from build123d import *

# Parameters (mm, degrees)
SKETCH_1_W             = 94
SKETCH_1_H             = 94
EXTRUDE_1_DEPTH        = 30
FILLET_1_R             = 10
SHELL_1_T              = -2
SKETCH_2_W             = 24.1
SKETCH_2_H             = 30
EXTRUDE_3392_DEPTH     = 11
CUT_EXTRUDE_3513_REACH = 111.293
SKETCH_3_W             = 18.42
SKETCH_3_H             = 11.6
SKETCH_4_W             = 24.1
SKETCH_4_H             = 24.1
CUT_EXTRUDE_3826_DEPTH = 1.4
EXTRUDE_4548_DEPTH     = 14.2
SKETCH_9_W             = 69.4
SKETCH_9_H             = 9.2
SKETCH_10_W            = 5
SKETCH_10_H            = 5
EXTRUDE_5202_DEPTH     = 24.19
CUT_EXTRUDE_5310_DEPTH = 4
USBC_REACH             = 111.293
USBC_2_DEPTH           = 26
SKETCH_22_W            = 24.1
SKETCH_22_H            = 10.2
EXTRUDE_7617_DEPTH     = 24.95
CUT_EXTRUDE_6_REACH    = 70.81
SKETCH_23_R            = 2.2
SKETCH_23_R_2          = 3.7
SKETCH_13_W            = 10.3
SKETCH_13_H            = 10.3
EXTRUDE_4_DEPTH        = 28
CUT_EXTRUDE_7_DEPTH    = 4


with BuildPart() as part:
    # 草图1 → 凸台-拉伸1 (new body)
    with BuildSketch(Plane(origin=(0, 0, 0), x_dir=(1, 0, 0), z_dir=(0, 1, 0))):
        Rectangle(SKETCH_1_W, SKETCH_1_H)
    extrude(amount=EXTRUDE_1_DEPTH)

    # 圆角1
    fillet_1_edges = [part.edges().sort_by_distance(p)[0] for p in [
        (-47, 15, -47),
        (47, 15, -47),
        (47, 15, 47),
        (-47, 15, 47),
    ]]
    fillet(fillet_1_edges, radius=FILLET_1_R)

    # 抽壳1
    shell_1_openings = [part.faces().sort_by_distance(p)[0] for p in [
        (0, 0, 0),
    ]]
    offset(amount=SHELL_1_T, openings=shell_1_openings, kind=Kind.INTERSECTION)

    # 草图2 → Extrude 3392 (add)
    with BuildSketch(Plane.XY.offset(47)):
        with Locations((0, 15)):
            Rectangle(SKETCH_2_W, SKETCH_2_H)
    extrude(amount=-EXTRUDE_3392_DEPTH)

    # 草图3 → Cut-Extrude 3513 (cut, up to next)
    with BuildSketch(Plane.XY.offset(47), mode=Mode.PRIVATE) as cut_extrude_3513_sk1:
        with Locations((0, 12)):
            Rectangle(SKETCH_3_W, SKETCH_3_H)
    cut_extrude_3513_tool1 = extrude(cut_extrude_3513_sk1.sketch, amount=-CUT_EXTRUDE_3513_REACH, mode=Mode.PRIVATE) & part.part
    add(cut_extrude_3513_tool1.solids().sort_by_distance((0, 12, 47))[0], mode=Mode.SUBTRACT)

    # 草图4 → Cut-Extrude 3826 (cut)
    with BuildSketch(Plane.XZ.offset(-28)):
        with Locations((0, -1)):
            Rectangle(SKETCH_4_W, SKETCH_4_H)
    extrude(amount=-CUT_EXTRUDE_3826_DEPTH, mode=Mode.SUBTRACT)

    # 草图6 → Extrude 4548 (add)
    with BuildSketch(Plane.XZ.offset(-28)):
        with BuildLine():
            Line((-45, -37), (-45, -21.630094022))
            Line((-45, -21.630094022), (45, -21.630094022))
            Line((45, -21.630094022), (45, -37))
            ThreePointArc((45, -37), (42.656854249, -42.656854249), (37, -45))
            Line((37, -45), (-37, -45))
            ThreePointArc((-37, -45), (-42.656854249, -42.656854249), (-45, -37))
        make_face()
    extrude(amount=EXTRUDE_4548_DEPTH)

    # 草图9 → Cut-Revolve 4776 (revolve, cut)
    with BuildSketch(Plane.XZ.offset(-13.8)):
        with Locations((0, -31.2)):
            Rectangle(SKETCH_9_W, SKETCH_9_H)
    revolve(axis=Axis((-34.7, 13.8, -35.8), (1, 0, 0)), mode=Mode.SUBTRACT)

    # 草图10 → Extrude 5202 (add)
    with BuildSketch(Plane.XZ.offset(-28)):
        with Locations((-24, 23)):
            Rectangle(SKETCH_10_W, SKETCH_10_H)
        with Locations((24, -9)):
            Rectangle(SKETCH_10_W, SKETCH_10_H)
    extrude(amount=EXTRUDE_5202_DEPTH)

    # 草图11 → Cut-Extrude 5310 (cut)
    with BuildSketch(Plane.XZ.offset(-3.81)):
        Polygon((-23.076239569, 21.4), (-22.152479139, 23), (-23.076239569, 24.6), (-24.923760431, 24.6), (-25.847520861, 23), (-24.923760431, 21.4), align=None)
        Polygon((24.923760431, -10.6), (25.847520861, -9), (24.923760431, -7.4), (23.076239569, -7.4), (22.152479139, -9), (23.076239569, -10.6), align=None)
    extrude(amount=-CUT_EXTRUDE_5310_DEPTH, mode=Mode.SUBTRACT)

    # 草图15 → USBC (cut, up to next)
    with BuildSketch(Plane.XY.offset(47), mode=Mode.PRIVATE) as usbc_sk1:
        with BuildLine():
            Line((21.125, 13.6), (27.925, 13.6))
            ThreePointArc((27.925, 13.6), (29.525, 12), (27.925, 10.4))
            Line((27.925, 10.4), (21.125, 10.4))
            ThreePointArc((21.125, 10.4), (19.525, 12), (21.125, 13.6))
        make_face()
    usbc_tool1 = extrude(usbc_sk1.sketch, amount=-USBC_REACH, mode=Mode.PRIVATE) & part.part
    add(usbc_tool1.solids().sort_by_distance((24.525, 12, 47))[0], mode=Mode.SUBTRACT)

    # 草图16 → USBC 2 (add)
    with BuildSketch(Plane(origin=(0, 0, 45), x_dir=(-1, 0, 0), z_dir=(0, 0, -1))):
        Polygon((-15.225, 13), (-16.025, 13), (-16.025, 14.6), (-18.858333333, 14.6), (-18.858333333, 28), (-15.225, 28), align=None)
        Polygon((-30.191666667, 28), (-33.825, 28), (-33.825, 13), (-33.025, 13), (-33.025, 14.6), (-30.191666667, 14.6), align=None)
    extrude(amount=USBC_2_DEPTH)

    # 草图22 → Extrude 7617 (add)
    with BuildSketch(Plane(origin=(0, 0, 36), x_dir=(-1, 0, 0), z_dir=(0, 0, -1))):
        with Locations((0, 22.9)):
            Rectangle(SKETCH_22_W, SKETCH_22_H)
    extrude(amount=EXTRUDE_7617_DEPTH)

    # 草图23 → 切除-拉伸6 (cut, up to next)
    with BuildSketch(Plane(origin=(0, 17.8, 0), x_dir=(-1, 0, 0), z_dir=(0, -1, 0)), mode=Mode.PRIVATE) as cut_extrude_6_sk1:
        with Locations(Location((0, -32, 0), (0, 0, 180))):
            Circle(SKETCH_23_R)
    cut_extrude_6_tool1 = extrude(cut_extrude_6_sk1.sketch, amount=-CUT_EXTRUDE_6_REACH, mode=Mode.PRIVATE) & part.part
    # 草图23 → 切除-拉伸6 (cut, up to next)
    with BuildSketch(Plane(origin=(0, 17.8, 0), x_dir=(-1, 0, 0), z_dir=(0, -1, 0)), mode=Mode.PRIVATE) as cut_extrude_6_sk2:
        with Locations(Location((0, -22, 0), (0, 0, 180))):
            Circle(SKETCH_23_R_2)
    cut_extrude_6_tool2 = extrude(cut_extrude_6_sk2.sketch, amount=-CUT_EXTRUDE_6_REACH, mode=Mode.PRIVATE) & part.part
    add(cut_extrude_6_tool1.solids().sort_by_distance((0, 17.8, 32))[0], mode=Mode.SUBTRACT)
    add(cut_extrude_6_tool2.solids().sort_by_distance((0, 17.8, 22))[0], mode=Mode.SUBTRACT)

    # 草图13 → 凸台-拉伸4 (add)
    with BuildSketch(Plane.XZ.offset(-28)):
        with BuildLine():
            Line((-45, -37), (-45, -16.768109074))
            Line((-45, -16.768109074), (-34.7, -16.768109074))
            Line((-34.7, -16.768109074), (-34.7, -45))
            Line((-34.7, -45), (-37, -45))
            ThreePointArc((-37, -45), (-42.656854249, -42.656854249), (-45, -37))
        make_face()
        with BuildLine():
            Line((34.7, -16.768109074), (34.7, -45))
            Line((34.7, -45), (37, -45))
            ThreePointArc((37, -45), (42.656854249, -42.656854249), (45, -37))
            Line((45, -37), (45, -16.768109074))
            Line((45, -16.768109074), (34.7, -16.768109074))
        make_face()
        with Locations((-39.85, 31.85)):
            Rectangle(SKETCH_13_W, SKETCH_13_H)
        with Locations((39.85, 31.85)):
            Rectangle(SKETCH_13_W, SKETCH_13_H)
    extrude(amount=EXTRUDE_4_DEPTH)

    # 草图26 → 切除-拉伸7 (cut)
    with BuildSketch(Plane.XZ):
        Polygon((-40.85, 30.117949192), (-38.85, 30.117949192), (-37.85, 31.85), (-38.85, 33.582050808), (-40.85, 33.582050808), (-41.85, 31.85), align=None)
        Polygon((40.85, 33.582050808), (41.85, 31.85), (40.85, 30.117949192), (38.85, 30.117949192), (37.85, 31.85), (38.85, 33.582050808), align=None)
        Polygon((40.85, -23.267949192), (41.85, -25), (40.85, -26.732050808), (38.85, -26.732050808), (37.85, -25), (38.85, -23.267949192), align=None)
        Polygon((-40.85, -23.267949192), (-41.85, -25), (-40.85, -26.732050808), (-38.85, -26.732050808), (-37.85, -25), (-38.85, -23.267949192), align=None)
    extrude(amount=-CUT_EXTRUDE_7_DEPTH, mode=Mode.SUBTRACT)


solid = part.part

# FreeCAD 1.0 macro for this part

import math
import FreeCAD as App
import Part
import Sketcher
from FreeCAD import Vector
Q = App.Units.Quantity


def edges_at(feature, points):
    """Names of the edges that pass closest to the given points."""
    edges = feature.Shape.Edges
    near = lambda p: min(range(len(edges)), key=lambda i: edges[i].distToShape(Part.Vertex(*p))[0])
    return sorted({f"Edge{near(p) + 1}" for p in points})


def faces_at(feature, points):
    """Names of the faces that lie closest to the given points."""
    faces = feature.Shape.Faces
    near = lambda p: min(range(len(faces)), key=lambda i: faces[i].distToShape(Part.Vertex(*p))[0])
    return sorted({f"Face{near(p) + 1}" for p in points})

doc = App.newDocument("Part")
body = doc.addObject("PartDesign::Body", "Body")

sketch1 = doc.addObject("Sketcher::SketchObject", "Sketch")
body.addObject(sketch1)
sketch1.AttachmentSupport = (doc.XZ_Plane, [""])
sketch1.MapMode = "FlatFace"
sketch1.addGeometry(Part.LineSegment(Vector(-47, -47, 0), Vector(-47, 47, 0)), False)
sketch1.addGeometry(Part.LineSegment(Vector(-47, 47, 0), Vector(47, 47, 0)), False)
sketch1.addGeometry(Part.LineSegment(Vector(47, 47, 0), Vector(47, -47, 0)), False)
sketch1.addGeometry(Part.LineSegment(Vector(47, -47, 0), Vector(-47, -47, 0)), False)
sketch1.addConstraint(Sketcher.Constraint("Coincident", 0, 2, 1, 1))
sketch1.addConstraint(Sketcher.Constraint("Coincident", 1, 2, 2, 1))
sketch1.addConstraint(Sketcher.Constraint("Coincident", 2, 2, 3, 1))
sketch1.addConstraint(Sketcher.Constraint("Coincident", 3, 2, 0, 1))
sketch1.addConstraint(Sketcher.Constraint("Vertical", 0))
sketch1.addConstraint(Sketcher.Constraint("Horizontal", 1))
sketch1.addConstraint(Sketcher.Constraint("Vertical", 2))
sketch1.addConstraint(Sketcher.Constraint("Horizontal", 3))
sketch1.addConstraint(Sketcher.Constraint("Symmetric", 0, 2, 2, 2, -1, 1))
sketch1.addConstraint(Sketcher.Constraint("Equal", 3, 0))
sketch1.addConstraint(Sketcher.Constraint("DistanceX", 1, 1, 1, 2, 94.0))
pad1 = doc.addObject("PartDesign::Pad", "Pad")
body.addObject(pad1)
pad1.Profile = sketch1
pad1.Length = 30
pad1.Reversed = True
doc.recompute()

fillet = doc.addObject("PartDesign::Fillet", "Fillet")
body.addObject(fillet)
fillet.Base = (pad1, edges_at(pad1, [
    (-47, 15, -47),
    (47, 15, -47),
    (47, 15, 47),
    (-47, 15, 47),
]))
fillet.Radius = 10
doc.recompute()

thickness = doc.addObject("PartDesign::Thickness", "Thickness")
body.addObject(thickness)
thickness.Base = (fillet, faces_at(fillet, [(0, 0, 0)]))
thickness.Value = 2
thickness.Reversed = True
thickness.Join = "Intersection"

sketch2 = doc.addObject("Sketcher::SketchObject", "Sketch001")
body.addObject(sketch2)
sketch2.AttachmentSupport = (doc.XY_Plane, [""])
sketch2.MapMode = "FlatFace"
sketch2.AttachmentOffset = App.Placement(Vector(0, 0, 47), App.Rotation())
sketch2.addGeometry(Part.LineSegment(Vector(-12, 30, 0), Vector(-12, 0, 0)), False)
sketch2.addGeometry(Part.LineSegment(Vector(-12, 0, 0), Vector(12, 0, 0)), False)
sketch2.addGeometry(Part.LineSegment(Vector(12, 0, 0), Vector(12, 30, 0)), False)
sketch2.addGeometry(Part.LineSegment(Vector(12, 30, 0), Vector(-12, 30, 0)), False)
sketch2.addConstraint(Sketcher.Constraint("Coincident", 0, 2, 1, 1))
sketch2.addConstraint(Sketcher.Constraint("Coincident", 1, 2, 2, 1))
sketch2.addConstraint(Sketcher.Constraint("Coincident", 2, 2, 3, 1))
sketch2.addConstraint(Sketcher.Constraint("Coincident", 3, 2, 0, 1))
sketch2.addConstraint(Sketcher.Constraint("Vertical", 0))
sketch2.addConstraint(Sketcher.Constraint("Horizontal", 1))
sketch2.addConstraint(Sketcher.Constraint("Vertical", 2))
sketch2.addConstraint(Sketcher.Constraint("Horizontal", 3))
sketch2.addConstraint(Sketcher.Constraint("Symmetric", 0, 2, 1, 2, -1, 1))
sketch2.addConstraint(Sketcher.Constraint("DistanceY", 0, 2, 0, 1, 30.0))
sketch2.addConstraint(Sketcher.Constraint("DistanceX", 1, 1, 1, 2, 24.1))
pad2 = doc.addObject("PartDesign::Pad", "Pad001")
body.addObject(pad2)
pad2.Profile = sketch2
pad2.Length = 11
pad2.Reversed = True

sketch3 = doc.addObject("Sketcher::SketchObject", "Sketch002")
body.addObject(sketch3)
sketch3.AttachmentSupport = (doc.XY_Plane, [""])
sketch3.MapMode = "FlatFace"
sketch3.AttachmentOffset = App.Placement(Vector(0, 0, 47), App.Rotation())
sketch3.addGeometry(Part.LineSegment(Vector(-9, 18, 0), Vector(-9, 6, 0)), False)
sketch3.addGeometry(Part.LineSegment(Vector(-9, 6, 0), Vector(9, 6, 0)), False)
sketch3.addGeometry(Part.LineSegment(Vector(9, 6, 0), Vector(9, 18, 0)), False)
sketch3.addGeometry(Part.LineSegment(Vector(9, 18, 0), Vector(-9, 18, 0)), False)
sketch3.addConstraint(Sketcher.Constraint("Coincident", 0, 2, 1, 1))
sketch3.addConstraint(Sketcher.Constraint("Coincident", 1, 2, 2, 1))
sketch3.addConstraint(Sketcher.Constraint("Coincident", 2, 2, 3, 1))
sketch3.addConstraint(Sketcher.Constraint("Coincident", 3, 2, 0, 1))
sketch3.addConstraint(Sketcher.Constraint("Vertical", 0))
sketch3.addConstraint(Sketcher.Constraint("Horizontal", 1))
sketch3.addConstraint(Sketcher.Constraint("Vertical", 2))
sketch3.addConstraint(Sketcher.Constraint("Horizontal", 3))
sketch3.addConstraint(Sketcher.Constraint("DistanceY", 0, 2, 0, 1, 11.6))
sketch3.addConstraint(Sketcher.Constraint("DistanceX", 1, 1, 1, 2, 18.42))
sketch3.addConstraint(Sketcher.Constraint("DistanceY", -1, 1, 0, 2, 6.2))
sketch3.addConstraint(Sketcher.Constraint("DistanceX", 0, 2, -1, 1, 9.21))
pocket1 = doc.addObject("PartDesign::Pocket", "Pocket")
body.addObject(pocket1)
pocket1.Profile = sketch3
pocket1.Type = "UpToFirst"

sketch4 = doc.addObject("Sketcher::SketchObject", "Sketch003")
body.addObject(sketch4)
sketch4.AttachmentSupport = (doc.XZ_Plane, [""])
sketch4.MapMode = "FlatFace"
sketch4.AttachmentOffset = App.Placement(Vector(0, 0, -28), App.Rotation())
sketch4.addGeometry(Part.LineSegment(Vector(-12, 11, 0), Vector(-12, -13, 0)), False)
sketch4.addGeometry(Part.LineSegment(Vector(-12, -13, 0), Vector(12, -13, 0)), False)
sketch4.addGeometry(Part.LineSegment(Vector(12, -13, 0), Vector(12, 11, 0)), False)
sketch4.addGeometry(Part.LineSegment(Vector(12, 11, 0), Vector(-12, 11, 0)), False)
sketch4.addConstraint(Sketcher.Constraint("Coincident", 0, 2, 1, 1))
sketch4.addConstraint(Sketcher.Constraint("Coincident", 1, 2, 2, 1))
sketch4.addConstraint(Sketcher.Constraint("Coincident", 2, 2, 3, 1))
sketch4.addConstraint(Sketcher.Constraint("Coincident", 3, 2, 0, 1))
sketch4.addConstraint(Sketcher.Constraint("Vertical", 0))
sketch4.addConstraint(Sketcher.Constraint("Horizontal", 1))
sketch4.addConstraint(Sketcher.Constraint("Vertical", 2))
sketch4.addConstraint(Sketcher.Constraint("Horizontal", 3))
sketch4.addConstraint(Sketcher.Constraint("Equal", 3, 0))
sketch4.addConstraint(Sketcher.Constraint("DistanceX", 1, 1, 1, 2, 24.1))
sketch4.addConstraint(Sketcher.Constraint("DistanceX", 0, 2, -1, 1, 12.05))
sketch4.addConstraint(Sketcher.Constraint("DistanceY", 0, 2, -1, 1, 13.05))
pocket2 = doc.addObject("PartDesign::Pocket", "Pocket001")
body.addObject(pocket2)
pocket2.Profile = sketch4
pocket2.Length = 1.4

sketch5 = doc.addObject("Sketcher::SketchObject", "Sketch004")
body.addObject(sketch5)
sketch5.AttachmentSupport = (doc.XZ_Plane, [""])
sketch5.MapMode = "FlatFace"
sketch5.AttachmentOffset = App.Placement(Vector(0, 0, -28), App.Rotation())
sketch5.addGeometry(Part.LineSegment(Vector(-45, -22, 0), Vector(-45, -37, 0)), False)
sketch5.addGeometry(Part.ArcOfCircle(Part.Circle(Vector(-37, -37, 0), Vector(0, 0, 1), 8), math.radians(-180), math.radians(-90)), False)
sketch5.addGeometry(Part.LineSegment(Vector(-37, -45, 0), Vector(37, -45, 0)), False)
sketch5.addGeometry(Part.ArcOfCircle(Part.Circle(Vector(37, -37, 0), Vector(0, 0, 1), 8), math.radians(-90), math.radians(0)), False)
sketch5.addGeometry(Part.LineSegment(Vector(45, -37, 0), Vector(45, -22, 0)), False)
sketch5.addGeometry(Part.LineSegment(Vector(45, -22, 0), Vector(-45, -22, 0)), False)
sketch5.addConstraint(Sketcher.Constraint("Tangent", 0, 2, 1, 1))
sketch5.addConstraint(Sketcher.Constraint("Tangent", 1, 2, 2, 1))
sketch5.addConstraint(Sketcher.Constraint("Tangent", 2, 2, 3, 1))
sketch5.addConstraint(Sketcher.Constraint("Tangent", 3, 2, 4, 1))
sketch5.addConstraint(Sketcher.Constraint("Coincident", 4, 2, 5, 1))
sketch5.addConstraint(Sketcher.Constraint("Coincident", 5, 2, 0, 1))
sketch5.addConstraint(Sketcher.Constraint("Vertical", 0))
sketch5.addConstraint(Sketcher.Constraint("Horizontal", 2))
sketch5.addConstraint(Sketcher.Constraint("Vertical", 4))
sketch5.addConstraint(Sketcher.Constraint("Horizontal", 5))
sketch5.addConstraint(Sketcher.Constraint("Equal", 1, 3))
sketch5.addConstraint(Sketcher.Constraint("Radius", 1, 8.0))
sketch5.addConstraint(Sketcher.Constraint("DistanceX", 2, 1, 2, 2, 74.0))
sketch5.addConstraint(Sketcher.Constraint("DistanceX", 1, 3, -1, 1, 37.0))
sketch5.addConstraint(Sketcher.Constraint("DistanceY", 1, 3, -1, 1, 37.0))
sketch5.addConstraint(Sketcher.Constraint("DistanceY", 0, 2, 0, 1, 15.369906))
pad3 = doc.addObject("PartDesign::Pad", "Pad002")
body.addObject(pad3)
pad3.Profile = sketch5
pad3.Length = 14.2

sketch6 = doc.addObject("Sketcher::SketchObject", "Sketch005")
body.addObject(sketch6)
sketch6.AttachmentSupport = (doc.XZ_Plane, [""])
sketch6.MapMode = "FlatFace"
sketch6.AttachmentOffset = App.Placement(Vector(0, 0, -13.8), App.Rotation())
sketch6.addGeometry(Part.LineSegment(Vector(-35, -27, 0), Vector(-35, -36, 0)), False)
sketch6.addGeometry(Part.LineSegment(Vector(-35, -36, 0), Vector(35, -36, 0)), False)
sketch6.addGeometry(Part.LineSegment(Vector(35, -36, 0), Vector(35, -27, 0)), False)
sketch6.addGeometry(Part.LineSegment(Vector(35, -27, 0), Vector(-35, -27, 0)), False)
sketch6.addGeometry(Part.LineSegment(Vector(-35, -36, 0), Vector(35, -36, 0)), True)
sketch6.addConstraint(Sketcher.Constraint("Coincident", 0, 2, 1, 1))
sketch6.addConstraint(Sketcher.Constraint("Coincident", 1, 2, 2, 1))
sketch6.addConstraint(Sketcher.Constraint("Coincident", 2, 2, 3, 1))
sketch6.addConstraint(Sketcher.Constraint("Coincident", 3, 2, 0, 1))
sketch6.addConstraint(Sketcher.Constraint("Vertical", 0))
sketch6.addConstraint(Sketcher.Constraint("Horizontal", 1))
sketch6.addConstraint(Sketcher.Constraint("Vertical", 2))
sketch6.addConstraint(Sketcher.Constraint("Horizontal", 3))
sketch6.addConstraint(Sketcher.Constraint("Horizontal", 4))
sketch6.addConstraint(Sketcher.Constraint("Coincident", 4, 1, 0, 2))
sketch6.addConstraint(Sketcher.Constraint("Vertical", 2, 2, 4, 2))
sketch6.addConstraint(Sketcher.Constraint("DistanceX", 1, 1, 1, 2, 69.4))
sketch6.addConstraint(Sketcher.Constraint("DistanceY", 0, 2, 0, 1, 9.2))
sketch6.addConstraint(Sketcher.Constraint("DistanceX", 0, 2, -1, 1, 34.7))
sketch6.addConstraint(Sketcher.Constraint("DistanceY", 0, 2, -1, 1, 35.8))
groove = doc.addObject("PartDesign::Groove", "Groove")
body.addObject(groove)
groove.Profile = sketch6
groove.ReferenceAxis = (sketch6, ["Axis0"])
groove.Angle = 360

sketch7 = doc.addObject("Sketcher::SketchObject", "Sketch006")
body.addObject(sketch7)
sketch7.AttachmentSupport = (doc.XZ_Plane, [""])
sketch7.MapMode = "FlatFace"
sketch7.AttachmentOffset = App.Placement(Vector(0, 0, -28), App.Rotation())
sketch7.addGeometry(Part.LineSegment(Vector(-26, 26, 0), Vector(-26, 20, 0)), False)
sketch7.addGeometry(Part.LineSegment(Vector(-26, 20, 0), Vector(-22, 20, 0)), False)
sketch7.addGeometry(Part.LineSegment(Vector(-22, 20, 0), Vector(-22, 26, 0)), False)
sketch7.addGeometry(Part.LineSegment(Vector(-22, 26, 0), Vector(-26, 26, 0)), False)
sketch7.addGeometry(Part.LineSegment(Vector(22, -6, 0), Vector(22, -12, 0)), False)
sketch7.addGeometry(Part.LineSegment(Vector(22, -12, 0), Vector(26, -12, 0)), False)
sketch7.addGeometry(Part.LineSegment(Vector(26, -12, 0), Vector(26, -6, 0)), False)
sketch7.addGeometry(Part.LineSegment(Vector(26, -6, 0), Vector(22, -6, 0)), False)
sketch7.addConstraint(Sketcher.Constraint("Coincident", 0, 2, 1, 1))
sketch7.addConstraint(Sketcher.Constraint("Coincident", 1, 2, 2, 1))
sketch7.addConstraint(Sketcher.Constraint("Coincident", 2, 2, 3, 1))
sketch7.addConstraint(Sketcher.Constraint("Coincident", 3, 2, 0, 1))
sketch7.addConstraint(Sketcher.Constraint("Coincident", 4, 2, 5, 1))
sketch7.addConstraint(Sketcher.Constraint("Coincident", 5, 2, 6, 1))
sketch7.addConstraint(Sketcher.Constraint("Coincident", 6, 2, 7, 1))
sketch7.addConstraint(Sketcher.Constraint("Coincident", 7, 2, 4, 1))
sketch7.addConstraint(Sketcher.Constraint("Vertical", 0))
sketch7.addConstraint(Sketcher.Constraint("Horizontal", 1))
sketch7.addConstraint(Sketcher.Constraint("Vertical", 2))
sketch7.addConstraint(Sketcher.Constraint("Horizontal", 3))
sketch7.addConstraint(Sketcher.Constraint("Vertical", 4))
sketch7.addConstraint(Sketcher.Constraint("Horizontal", 5))
sketch7.addConstraint(Sketcher.Constraint("Vertical", 6))
sketch7.addConstraint(Sketcher.Constraint("Horizontal", 7))
sketch7.addConstraint(Sketcher.Constraint("Equal", 3, 5))
sketch7.addConstraint(Sketcher.Constraint("Equal", 7, 0))
sketch7.addConstraint(Sketcher.Constraint("Equal", 2, 4))
sketch7.addConstraint(Sketcher.Constraint("DistanceX", 1, 1, 1, 2, 5.0))
sketch7.addConstraint(Sketcher.Constraint("DistanceX", 1, 2, 4, 2, 43.0))
sketch7.addConstraint(Sketcher.Constraint("DistanceY", 4, 2, 1, 2, 32.0))
sketch7.addConstraint(Sketcher.Constraint("DistanceX", 0, 2, -1, 1, 26.5))
sketch7.addConstraint(Sketcher.Constraint("DistanceY", -1, 1, 0, 2, 20.5))
pad4 = doc.addObject("PartDesign::Pad", "Pad003")
body.addObject(pad4)
pad4.Profile = sketch7
pad4.Length = 24.19

sketch8 = doc.addObject("Sketcher::SketchObject", "Sketch007")
body.addObject(sketch8)
sketch8.AttachmentSupport = (doc.XZ_Plane, [""])
sketch8.MapMode = "FlatFace"
sketch8.AttachmentOffset = App.Placement(Vector(0, 0, -3.81), App.Rotation())
sketch8.addGeometry(Part.LineSegment(Vector(-23.1, 21.4, 0), Vector(-22.2, 23, 0)), False)
sketch8.addGeometry(Part.LineSegment(Vector(-22.2, 23, 0), Vector(-23.1, 24.6, 0)), False)
sketch8.addGeometry(Part.LineSegment(Vector(-23.1, 24.6, 0), Vector(-24.9, 24.6, 0)), False)
sketch8.addGeometry(Part.LineSegment(Vector(-24.9, 24.6, 0), Vector(-25.8, 23, 0)), False)
sketch8.addGeometry(Part.LineSegment(Vector(-25.8, 23, 0), Vector(-24.9, 21.4, 0)), False)
sketch8.addGeometry(Part.LineSegment(Vector(-24.9, 21.4, 0), Vector(-23.1, 21.4, 0)), False)
sketch8.addGeometry(Part.LineSegment(Vector(24.9, -10.6, 0), Vector(25.8, -9, 0)), False)
sketch8.addGeometry(Part.LineSegment(Vector(25.8, -9, 0), Vector(24.9, -7.4, 0)), False)
sketch8.addGeometry(Part.LineSegment(Vector(24.9, -7.4, 0), Vector(23.1, -7.4, 0)), False)
sketch8.addGeometry(Part.LineSegment(Vector(23.1, -7.4, 0), Vector(22.2, -9, 0)), False)
sketch8.addGeometry(Part.LineSegment(Vector(22.2, -9, 0), Vector(23.1, -10.6, 0)), False)
sketch8.addGeometry(Part.LineSegment(Vector(23.1, -10.6, 0), Vector(24.9, -10.6, 0)), False)
sketch8.addConstraint(Sketcher.Constraint("Coincident", 0, 2, 1, 1))
sketch8.addConstraint(Sketcher.Constraint("Coincident", 1, 2, 2, 1))
sketch8.addConstraint(Sketcher.Constraint("Coincident", 2, 2, 3, 1))
sketch8.addConstraint(Sketcher.Constraint("Coincident", 3, 2, 4, 1))
sketch8.addConstraint(Sketcher.Constraint("Coincident", 4, 2, 5, 1))
sketch8.addConstraint(Sketcher.Constraint("Coincident", 5, 2, 0, 1))
sketch8.addConstraint(Sketcher.Constraint("Coincident", 6, 2, 7, 1))
sketch8.addConstraint(Sketcher.Constraint("Coincident", 7, 2, 8, 1))
sketch8.addConstraint(Sketcher.Constraint("Coincident", 8, 2, 9, 1))
sketch8.addConstraint(Sketcher.Constraint("Coincident", 9, 2, 10, 1))
sketch8.addConstraint(Sketcher.Constraint("Coincident", 10, 2, 11, 1))
sketch8.addConstraint(Sketcher.Constraint("Coincident", 11, 2, 6, 1))
sketch8.addConstraint(Sketcher.Constraint("Horizontal", 2))
sketch8.addConstraint(Sketcher.Constraint("Horizontal", 5))
sketch8.addConstraint(Sketcher.Constraint("Horizontal", 8))
sketch8.addConstraint(Sketcher.Constraint("Horizontal", 11))
sketch8.addConstraint(Sketcher.Constraint("Parallel", 0, 3))
sketch8.addConstraint(Sketcher.Constraint("Parallel", 1, 4))
sketch8.addConstraint(Sketcher.Constraint("Parallel", 3, 6))
sketch8.addConstraint(Sketcher.Constraint("Parallel", 4, 7))
sketch8.addConstraint(Sketcher.Constraint("Parallel", 6, 9))
sketch8.addConstraint(Sketcher.Constraint("Parallel", 7, 10))
sketch8.addConstraint(Sketcher.Constraint("Horizontal", 0, 2, 3, 2))
sketch8.addConstraint(Sketcher.Constraint("Horizontal", 6, 2, 9, 2))
sketch8.addConstraint(Sketcher.Constraint("Vertical", 2, 2, 4, 2))
sketch8.addConstraint(Sketcher.Constraint("Vertical", 1, 2, 5, 2))
sketch8.addConstraint(Sketcher.Constraint("Vertical", 8, 2, 10, 2))
sketch8.addConstraint(Sketcher.Constraint("Equal", 5, 8))
sketch8.addConstraint(Sketcher.Constraint("Equal", 4, 6))
sketch8.addConstraint(Sketcher.Constraint("Angle", 0, Q("60 deg")))
sketch8.addConstraint(Sketcher.Constraint("DistanceY", -1, 1, 0, 2, 23.0))
sketch8.addConstraint(Sketcher.Constraint("DistanceY", 6, 2, -1, 1, 9.0))
sketch8.addConstraint(Sketcher.Constraint("DistanceX", 0, 2, 6, 2, 48.0))
sketch8.addConstraint(Sketcher.Constraint("DistanceY", -1, 1, 1, 2, 24.6))
sketch8.addConstraint(Sketcher.Constraint("DistanceX", 2, 2, 2, 1, 1.847521))
sketch8.addConstraint(Sketcher.Constraint("DistanceX", 0, 2, -1, 1, 22.152479))
pocket3 = doc.addObject("PartDesign::Pocket", "Pocket002")
body.addObject(pocket3)
pocket3.Profile = sketch8
pocket3.Length = 4

sketch9 = doc.addObject("Sketcher::SketchObject", "Sketch008")
body.addObject(sketch9)
sketch9.AttachmentSupport = (doc.XY_Plane, [""])
sketch9.MapMode = "FlatFace"
sketch9.AttachmentOffset = App.Placement(Vector(0, 0, 47), App.Rotation())
sketch9.addGeometry(Part.LineSegment(Vector(27.9, 13.6, 0), Vector(21.1, 13.6, 0)), False)
sketch9.addGeometry(Part.ArcOfCircle(Part.Circle(Vector(21.1, 12, 0), Vector(0, 0, 1), 1.6), math.radians(90), math.radians(270)), False)
sketch9.addGeometry(Part.LineSegment(Vector(21.1, 10.4, 0), Vector(27.9, 10.4, 0)), False)
sketch9.addGeometry(Part.ArcOfCircle(Part.Circle(Vector(27.9, 12, 0), Vector(0, 0, 1), 1.6), math.radians(-90), math.radians(90)), False)
sketch9.addConstraint(Sketcher.Constraint("Tangent", 0, 2, 1, 1))
sketch9.addConstraint(Sketcher.Constraint("Tangent", 1, 2, 2, 1))
sketch9.addConstraint(Sketcher.Constraint("Tangent", 2, 2, 3, 1))
sketch9.addConstraint(Sketcher.Constraint("Tangent", 3, 2, 0, 1))
sketch9.addConstraint(Sketcher.Constraint("Horizontal", 0))
sketch9.addConstraint(Sketcher.Constraint("Horizontal", 2))
sketch9.addConstraint(Sketcher.Constraint("Radius", 1, 1.6))
sketch9.addConstraint(Sketcher.Constraint("DistanceX", 0, 2, 0, 1, 6.8))
sketch9.addConstraint(Sketcher.Constraint("DistanceY", -1, 1, 1, 3, 12.0))
sketch9.addConstraint(Sketcher.Constraint("DistanceX", -1, 1, 1, 3, 21.125))
pocket4 = doc.addObject("PartDesign::Pocket", "Pocket003")
body.addObject(pocket4)
pocket4.Profile = sketch9
pocket4.Type = "UpToFirst"

sketch10 = doc.addObject("Sketcher::SketchObject", "Sketch009")
body.addObject(sketch10)
sketch10.AttachmentSupport = (doc.XY_Plane, [""])
sketch10.MapMode = "FlatFace"
sketch10.AttachmentOffset = App.Placement(Vector(0, 0, 45), App.Rotation())
sketch10.addGeometry(Part.LineSegment(Vector(16, 13, 0), Vector(15.2, 13, 0)), False)
sketch10.addGeometry(Part.LineSegment(Vector(15.2, 13, 0), Vector(15.2, 28, 0)), False)
sketch10.addGeometry(Part.LineSegment(Vector(15.2, 28, 0), Vector(18.9, 28, 0)), False)
sketch10.addGeometry(Part.LineSegment(Vector(18.9, 28, 0), Vector(18.9, 14.6, 0)), False)
sketch10.addGeometry(Part.LineSegment(Vector(18.9, 14.6, 0), Vector(16, 14.6, 0)), False)
sketch10.addGeometry(Part.LineSegment(Vector(16, 14.6, 0), Vector(16, 13, 0)), False)
sketch10.addGeometry(Part.LineSegment(Vector(30.2, 28, 0), Vector(33.8, 28, 0)), False)
sketch10.addGeometry(Part.LineSegment(Vector(33.8, 28, 0), Vector(33.8, 13, 0)), False)
sketch10.addGeometry(Part.LineSegment(Vector(33.8, 13, 0), Vector(33, 13, 0)), False)
sketch10.addGeometry(Part.LineSegment(Vector(33, 13, 0), Vector(33, 14.6, 0)), False)
sketch10.addGeometry(Part.LineSegment(Vector(33, 14.6, 0), Vector(30.2, 14.6, 0)), False)
sketch10.addGeometry(Part.LineSegment(Vector(30.2, 14.6, 0), Vector(30.2, 28, 0)), False)
sketch10.addConstraint(Sketcher.Constraint("Coincident", 0, 2, 1, 1))
sketch10.addConstraint(Sketcher.Constraint("Coincident", 1, 2, 2, 1))
sketch10.addConstraint(Sketcher.Constraint("Coincident", 2, 2, 3, 1))
sketch10.addConstraint(Sketcher.Constraint("Coincident", 3, 2, 4, 1))
sketch10.addConstraint(Sketcher.Constraint("Coincident", 4, 2, 5, 1))
sketch10.addConstraint(Sketcher.Constraint("Coincident", 5, 2, 0, 1))
sketch10.addConstraint(Sketcher.Constraint("Coincident", 6, 2, 7, 1))
sketch10.addConstraint(Sketcher.Constraint("Coincident", 7, 2, 8, 1))
sketch10.addConstraint(Sketcher.Constraint("Coincident", 8, 2, 9, 1))
sketch10.addConstraint(Sketcher.Constraint("Coincident", 9, 2, 10, 1))
sketch10.addConstraint(Sketcher.Constraint("Coincident", 10, 2, 11, 1))
sketch10.addConstraint(Sketcher.Constraint("Coincident", 11, 2, 6, 1))
sketch10.addConstraint(Sketcher.Constraint("Horizontal", 0))
sketch10.addConstraint(Sketcher.Constraint("Vertical", 1))
sketch10.addConstraint(Sketcher.Constraint("Horizontal", 2))
sketch10.addConstraint(Sketcher.Constraint("Vertical", 3))
sketch10.addConstraint(Sketcher.Constraint("Horizontal", 4))
sketch10.addConstraint(Sketcher.Constraint("Vertical", 5))
sketch10.addConstraint(Sketcher.Constraint("Horizontal", 6))
sketch10.addConstraint(Sketcher.Constraint("Vertical", 7))
sketch10.addConstraint(Sketcher.Constraint("Horizontal", 8))
sketch10.addConstraint(Sketcher.Constraint("Vertical", 9))
sketch10.addConstraint(Sketcher.Constraint("Horizontal", 10))
sketch10.addConstraint(Sketcher.Constraint("Vertical", 11))
sketch10.addConstraint(Sketcher.Constraint("Horizontal", 2, 2, 6, 2))
sketch10.addConstraint(Sketcher.Constraint("Horizontal", 5, 2, 7, 2))
sketch10.addConstraint(Sketcher.Constraint("Horizontal", 4, 2, 9, 2))
sketch10.addConstraint(Sketcher.Constraint("Equal", 2, 6))
sketch10.addConstraint(Sketcher.Constraint("Equal", 0, 8))
sketch10.addConstraint(Sketcher.Constraint("DistanceY", 1, 1, 1, 2, 15.0))
sketch10.addConstraint(Sketcher.Constraint("DistanceX", 0, 2, 0, 1, 0.8))
sketch10.addConstraint(Sketcher.Constraint("DistanceY", 3, 2, 3, 1, 13.4))
sketch10.addConstraint(Sketcher.Constraint("DistanceY", -1, 1, 0, 2, 13.0))
sketch10.addConstraint(Sketcher.Constraint("DistanceX", 5, 2, 8, 2, 17.0))
sketch10.addConstraint(Sketcher.Constraint("DistanceX", -1, 1, 0, 2, 15.225))
sketch10.addConstraint(Sketcher.Constraint("DistanceX", 2, 1, 2, 2, 3.633333))
pad5 = doc.addObject("PartDesign::Pad", "Pad004")
body.addObject(pad5)
pad5.Profile = sketch10
pad5.Length = 26
pad5.Reversed = True

sketch11 = doc.addObject("Sketcher::SketchObject", "Sketch010")
body.addObject(sketch11)
sketch11.AttachmentSupport = (doc.XY_Plane, [""])
sketch11.MapMode = "FlatFace"
sketch11.AttachmentOffset = App.Placement(Vector(0, 0, 36), App.Rotation())
sketch11.addGeometry(Part.LineSegment(Vector(12, 28, 0), Vector(12, 18, 0)), False)
sketch11.addGeometry(Part.LineSegment(Vector(12, 18, 0), Vector(-12, 18, 0)), False)
sketch11.addGeometry(Part.LineSegment(Vector(-12, 18, 0), Vector(-12, 28, 0)), False)
sketch11.addGeometry(Part.LineSegment(Vector(-12, 28, 0), Vector(12, 28, 0)), False)
sketch11.addConstraint(Sketcher.Constraint("Coincident", 0, 2, 1, 1))
sketch11.addConstraint(Sketcher.Constraint("Coincident", 1, 2, 2, 1))
sketch11.addConstraint(Sketcher.Constraint("Coincident", 2, 2, 3, 1))
sketch11.addConstraint(Sketcher.Constraint("Coincident", 3, 2, 0, 1))
sketch11.addConstraint(Sketcher.Constraint("Vertical", 0))
sketch11.addConstraint(Sketcher.Constraint("Horizontal", 1))
sketch11.addConstraint(Sketcher.Constraint("Vertical", 2))
sketch11.addConstraint(Sketcher.Constraint("Horizontal", 3))
sketch11.addConstraint(Sketcher.Constraint("DistanceX", 1, 2, 1, 1, 24.1))
sketch11.addConstraint(Sketcher.Constraint("DistanceY", 0, 2, 0, 1, 10.2))
sketch11.addConstraint(Sketcher.Constraint("DistanceY", -1, 1, 2, 2, 28.0))
sketch11.addConstraint(Sketcher.Constraint("DistanceX", -1, 1, 0, 2, 12.05))
pad6 = doc.addObject("PartDesign::Pad", "Pad005")
body.addObject(pad6)
pad6.Profile = sketch11
pad6.Length = 24.95
pad6.Reversed = True

sketch12 = doc.addObject("Sketcher::SketchObject", "Sketch011")
body.addObject(sketch12)
sketch12.AttachmentSupport = (doc.XZ_Plane, [""])
sketch12.MapMode = "FlatFace"
sketch12.AttachmentOffset = App.Placement(Vector(0, 0, -17.8), App.Rotation())
sketch12.addGeometry(Part.Circle(Vector(0, 32, 0), Vector(0, 0, 1), 2.2), False)
sketch12.addConstraint(Sketcher.Constraint("PointOnObject", 0, 3, -2))
sketch12.addConstraint(Sketcher.Constraint("Diameter", 0, 4.4))
sketch12.addConstraint(Sketcher.Constraint("DistanceY", -1, 1, 0, 3, 32.0))
pocket5 = doc.addObject("PartDesign::Pocket", "Pocket004")
body.addObject(pocket5)
pocket5.Profile = sketch12
pocket5.Type = "UpToFirst"

sketch13 = doc.addObject("Sketcher::SketchObject", "Sketch012")
body.addObject(sketch13)
sketch13.AttachmentSupport = (doc.XZ_Plane, [""])
sketch13.MapMode = "FlatFace"
sketch13.AttachmentOffset = App.Placement(Vector(0, 0, -17.8), App.Rotation())
sketch13.addGeometry(Part.Circle(Vector(0, 22, 0), Vector(0, 0, 1), 3.7), False)
sketch13.addConstraint(Sketcher.Constraint("PointOnObject", 0, 3, -2))
sketch13.addConstraint(Sketcher.Constraint("Diameter", 0, 7.4))
sketch13.addConstraint(Sketcher.Constraint("DistanceY", -1, 1, 0, 3, 22.0))
pocket6 = doc.addObject("PartDesign::Pocket", "Pocket005")
body.addObject(pocket6)
pocket6.Profile = sketch13
pocket6.Type = "UpToFirst"

sketch14 = doc.addObject("Sketcher::SketchObject", "Sketch013")
body.addObject(sketch14)
sketch14.AttachmentSupport = (doc.XZ_Plane, [""])
sketch14.MapMode = "FlatFace"
sketch14.AttachmentOffset = App.Placement(Vector(0, 0, -28), App.Rotation())
sketch14.addGeometry(Part.LineSegment(Vector(-45, -16.8, 0), Vector(-45, -37, 0)), False)
sketch14.addGeometry(Part.ArcOfCircle(Part.Circle(Vector(-37, -37, 0), Vector(0, 0, 1), 8), math.radians(-180), math.radians(-90)), False)
sketch14.addGeometry(Part.LineSegment(Vector(-37, -45, 0), Vector(-34.7, -45, 0)), False)
sketch14.addGeometry(Part.LineSegment(Vector(-34.7, -45, 0), Vector(-34.7, -16.8, 0)), False)
sketch14.addGeometry(Part.LineSegment(Vector(-34.7, -16.8, 0), Vector(-45, -16.8, 0)), False)
sketch14.addGeometry(Part.LineSegment(Vector(34.7, -16.8, 0), Vector(34.7, -45, 0)), False)
sketch14.addGeometry(Part.LineSegment(Vector(34.7, -45, 0), Vector(37, -45, 0)), False)
sketch14.addGeometry(Part.ArcOfCircle(Part.Circle(Vector(37, -37, 0), Vector(0, 0, 1), 8), math.radians(-90), math.radians(0)), False)
sketch14.addGeometry(Part.LineSegment(Vector(45, -37, 0), Vector(45, -16.8, 0)), False)
sketch14.addGeometry(Part.LineSegment(Vector(45, -16.8, 0), Vector(34.7, -16.8, 0)), False)
sketch14.addGeometry(Part.LineSegment(Vector(-45, 37, 0), Vector(-45, 26.7, 0)), False)
sketch14.addGeometry(Part.LineSegment(Vector(-45, 26.7, 0), Vector(-34.7, 26.7, 0)), False)
sketch14.addGeometry(Part.LineSegment(Vector(-34.7, 26.7, 0), Vector(-34.7, 37, 0)), False)
sketch14.addGeometry(Part.LineSegment(Vector(-34.7, 37, 0), Vector(-45, 37, 0)), False)
sketch14.addGeometry(Part.LineSegment(Vector(34.7, 37, 0), Vector(34.7, 26.7, 0)), False)
sketch14.addGeometry(Part.LineSegment(Vector(34.7, 26.7, 0), Vector(45, 26.7, 0)), False)
sketch14.addGeometry(Part.LineSegment(Vector(45, 26.7, 0), Vector(45, 37, 0)), False)
sketch14.addGeometry(Part.LineSegment(Vector(45, 37, 0), Vector(34.7, 37, 0)), False)
sketch14.addConstraint(Sketcher.Constraint("Tangent", 0, 2, 1, 1))
sketch14.addConstraint(Sketcher.Constraint("Tangent", 1, 2, 2, 1))
sketch14.addConstraint(Sketcher.Constraint("Coincident", 2, 2, 3, 1))
sketch14.addConstraint(Sketcher.Constraint("Coincident", 3, 2, 4, 1))
sketch14.addConstraint(Sketcher.Constraint("Coincident", 4, 2, 0, 1))
sketch14.addConstraint(Sketcher.Constraint("Coincident", 5, 2, 6, 1))
sketch14.addConstraint(Sketcher.Constraint("Tangent", 6, 2, 7, 1))
sketch14.addConstraint(Sketcher.Constraint("Tangent", 7, 2, 8, 1))
sketch14.addConstraint(Sketcher.Constraint("Coincident", 8, 2, 9, 1))
sketch14.addConstraint(Sketcher.Constraint("Coincident", 9, 2, 5, 1))
sketch14.addConstraint(Sketcher.Constraint("Coincident", 10, 2, 11, 1))
sketch14.addConstraint(Sketcher.Constraint("Coincident", 11, 2, 12, 1))
sketch14.addConstraint(Sketcher.Constraint("Coincident", 12, 2, 13, 1))
sketch14.addConstraint(Sketcher.Constraint("Coincident", 13, 2, 10, 1))
sketch14.addConstraint(Sketcher.Constraint("Coincident", 14, 2, 15, 1))
sketch14.addConstraint(Sketcher.Constraint("Coincident", 15, 2, 16, 1))
sketch14.addConstraint(Sketcher.Constraint("Coincident", 16, 2, 17, 1))
sketch14.addConstraint(Sketcher.Constraint("Coincident", 17, 2, 14, 1))
sketch14.addConstraint(Sketcher.Constraint("Vertical", 0))
sketch14.addConstraint(Sketcher.Constraint("Horizontal", 2))
sketch14.addConstraint(Sketcher.Constraint("Vertical", 3))
sketch14.addConstraint(Sketcher.Constraint("Horizontal", 4))
sketch14.addConstraint(Sketcher.Constraint("Vertical", 5))
sketch14.addConstraint(Sketcher.Constraint("Horizontal", 6))
sketch14.addConstraint(Sketcher.Constraint("Vertical", 8))
sketch14.addConstraint(Sketcher.Constraint("Horizontal", 9))
sketch14.addConstraint(Sketcher.Constraint("Vertical", 10))
sketch14.addConstraint(Sketcher.Constraint("Horizontal", 11))
sketch14.addConstraint(Sketcher.Constraint("Vertical", 12))
sketch14.addConstraint(Sketcher.Constraint("Horizontal", 13))
sketch14.addConstraint(Sketcher.Constraint("Vertical", 14))
sketch14.addConstraint(Sketcher.Constraint("Horizontal", 15))
sketch14.addConstraint(Sketcher.Constraint("Vertical", 16))
sketch14.addConstraint(Sketcher.Constraint("Horizontal", 17))
sketch14.addConstraint(Sketcher.Constraint("Equal", 1, 7))
sketch14.addConstraint(Sketcher.Constraint("Symmetric", 7, 2, 13, 2, -1, 1))
sketch14.addConstraint(Sketcher.Constraint("Symmetric", 0, 2, 16, 2, -1, 1))
sketch14.addConstraint(Sketcher.Constraint("Symmetric", 1, 3, 7, 3, -2))
sketch14.addConstraint(Sketcher.Constraint("Symmetric", 3, 2, 9, 2, -2))
sketch14.addConstraint(Sketcher.Constraint("Symmetric", 11, 2, 14, 2, -2))
sketch14.addConstraint(Sketcher.Constraint("Vertical", 3, 2, 11, 2))
sketch14.addConstraint(Sketcher.Constraint("Equal", 17, 10))
sketch14.addConstraint(Sketcher.Constraint("Radius", 1, 8.0))
sketch14.addConstraint(Sketcher.Constraint("DistanceX", 2, 1, 2, 2, 2.3))
sketch14.addConstraint(Sketcher.Constraint("DistanceX", 1, 3, -1, 1, 37.0))
sketch14.addConstraint(Sketcher.Constraint("DistanceY", 1, 3, -1, 1, 37.0))
sketch14.addConstraint(Sketcher.Constraint("DistanceY", 0, 2, 0, 1, 20.231891))
pad7 = doc.addObject("PartDesign::Pad", "Pad006")
body.addObject(pad7)
pad7.Profile = sketch14
pad7.Length = 28

sketch15 = doc.addObject("Sketcher::SketchObject", "Sketch014")
body.addObject(sketch15)
sketch15.AttachmentSupport = (doc.XZ_Plane, [""])
sketch15.MapMode = "FlatFace"
sketch15.addGeometry(Part.LineSegment(Vector(-40.9, 30.1, 0), Vector(-38.9, 30.1, 0)), False)
sketch15.addGeometry(Part.LineSegment(Vector(-38.9, 30.1, 0), Vector(-37.9, 31.9, 0)), False)
sketch15.addGeometry(Part.LineSegment(Vector(-37.9, 31.9, 0), Vector(-38.9, 33.6, 0)), False)
sketch15.addGeometry(Part.LineSegment(Vector(-38.9, 33.6, 0), Vector(-40.9, 33.6, 0)), False)
sketch15.addGeometry(Part.LineSegment(Vector(-40.9, 33.6, 0), Vector(-41.9, 31.9, 0)), False)
sketch15.addGeometry(Part.LineSegment(Vector(-41.9, 31.9, 0), Vector(-40.9, 30.1, 0)), False)
sketch15.addGeometry(Part.LineSegment(Vector(41.9, 31.9, 0), Vector(40.9, 33.6, 0)), False)
sketch15.addGeometry(Part.LineSegment(Vector(40.9, 33.6, 0), Vector(38.9, 33.6, 0)), False)
sketch15.addGeometry(Part.LineSegment(Vector(38.9, 33.6, 0), Vector(37.9, 31.9, 0)), False)
sketch15.addGeometry(Part.LineSegment(Vector(37.9, 31.9, 0), Vector(38.9, 30.1, 0)), False)
sketch15.addGeometry(Part.LineSegment(Vector(38.9, 30.1, 0), Vector(40.9, 30.1, 0)), False)
sketch15.addGeometry(Part.LineSegment(Vector(40.9, 30.1, 0), Vector(41.9, 31.9, 0)), False)
sketch15.addGeometry(Part.LineSegment(Vector(41.9, -25, 0), Vector(40.9, -23.3, 0)), False)
sketch15.addGeometry(Part.LineSegment(Vector(40.9, -23.3, 0), Vector(38.9, -23.3, 0)), False)
sketch15.addGeometry(Part.LineSegment(Vector(38.9, -23.3, 0), Vector(37.9, -25, 0)), False)
sketch15.addGeometry(Part.LineSegment(Vector(37.9, -25, 0), Vector(38.9, -26.7, 0)), False)
sketch15.addGeometry(Part.LineSegment(Vector(38.9, -26.7, 0), Vector(40.9, -26.7, 0)), False)
sketch15.addGeometry(Part.LineSegment(Vector(40.9, -26.7, 0), Vector(41.9, -25, 0)), False)
sketch15.addGeometry(Part.LineSegment(Vector(-40.9, -23.3, 0), Vector(-41.9, -25, 0)), False)
sketch15.addGeometry(Part.LineSegment(Vector(-41.9, -25, 0), Vector(-40.9, -26.7, 0)), False)
sketch15.addGeometry(Part.LineSegment(Vector(-40.9, -26.7, 0), Vector(-38.9, -26.7, 0)), False)
sketch15.addGeometry(Part.LineSegment(Vector(-38.9, -26.7, 0), Vector(-37.9, -25, 0)), False)
sketch15.addGeometry(Part.LineSegment(Vector(-37.9, -25, 0), Vector(-38.9, -23.3, 0)), False)
sketch15.addGeometry(Part.LineSegment(Vector(-38.9, -23.3, 0), Vector(-40.9, -23.3, 0)), False)
sketch15.addConstraint(Sketcher.Constraint("Coincident", 0, 2, 1, 1))
sketch15.addConstraint(Sketcher.Constraint("Coincident", 1, 2, 2, 1))
sketch15.addConstraint(Sketcher.Constraint("Coincident", 2, 2, 3, 1))
sketch15.addConstraint(Sketcher.Constraint("Coincident", 3, 2, 4, 1))
sketch15.addConstraint(Sketcher.Constraint("Coincident", 4, 2, 5, 1))
sketch15.addConstraint(Sketcher.Constraint("Coincident", 5, 2, 0, 1))
sketch15.addConstraint(Sketcher.Constraint("Coincident", 6, 2, 7, 1))
sketch15.addConstraint(Sketcher.Constraint("Coincident", 7, 2, 8, 1))
sketch15.addConstraint(Sketcher.Constraint("Coincident", 8, 2, 9, 1))
sketch15.addConstraint(Sketcher.Constraint("Coincident", 9, 2, 10, 1))
sketch15.addConstraint(Sketcher.Constraint("Coincident", 10, 2, 11, 1))
sketch15.addConstraint(Sketcher.Constraint("Coincident", 11, 2, 6, 1))
sketch15.addConstraint(Sketcher.Constraint("Coincident", 12, 2, 13, 1))
sketch15.addConstraint(Sketcher.Constraint("Coincident", 13, 2, 14, 1))
sketch15.addConstraint(Sketcher.Constraint("Coincident", 14, 2, 15, 1))
sketch15.addConstraint(Sketcher.Constraint("Coincident", 15, 2, 16, 1))
sketch15.addConstraint(Sketcher.Constraint("Coincident", 16, 2, 17, 1))
sketch15.addConstraint(Sketcher.Constraint("Coincident", 17, 2, 12, 1))
sketch15.addConstraint(Sketcher.Constraint("Coincident", 18, 2, 19, 1))
sketch15.addConstraint(Sketcher.Constraint("Coincident", 19, 2, 20, 1))
sketch15.addConstraint(Sketcher.Constraint("Coincident", 20, 2, 21, 1))
sketch15.addConstraint(Sketcher.Constraint("Coincident", 21, 2, 22, 1))
sketch15.addConstraint(Sketcher.Constraint("Coincident", 22, 2, 23, 1))
sketch15.addConstraint(Sketcher.Constraint("Coincident", 23, 2, 18, 1))
sketch15.addConstraint(Sketcher.Constraint("Horizontal", 0))
sketch15.addConstraint(Sketcher.Constraint("Horizontal", 3))
sketch15.addConstraint(Sketcher.Constraint("Horizontal", 7))
sketch15.addConstraint(Sketcher.Constraint("Horizontal", 10))
sketch15.addConstraint(Sketcher.Constraint("Horizontal", 13))
sketch15.addConstraint(Sketcher.Constraint("Horizontal", 16))
sketch15.addConstraint(Sketcher.Constraint("Horizontal", 20))
sketch15.addConstraint(Sketcher.Constraint("Horizontal", 23))
sketch15.addConstraint(Sketcher.Constraint("Symmetric", 3, 2, 6, 2, -2))
sketch15.addConstraint(Sketcher.Constraint("Symmetric", 1, 2, 8, 2, -2))
sketch15.addConstraint(Sketcher.Constraint("Symmetric", 0, 2, 9, 2, -2))
sketch15.addConstraint(Sketcher.Constraint("Symmetric", 4, 2, 11, 2, -2))
sketch15.addConstraint(Sketcher.Constraint("Symmetric", 17, 2, 18, 2, -2))
sketch15.addConstraint(Sketcher.Constraint("Symmetric", 16, 2, 19, 2, -2))
sketch15.addConstraint(Sketcher.Constraint("Symmetric", 14, 2, 21, 2, -2))
sketch15.addConstraint(Sketcher.Constraint("Symmetric", 13, 2, 22, 2, -2))
sketch15.addConstraint(Sketcher.Constraint("Parallel", 1, 4))
sketch15.addConstraint(Sketcher.Constraint("Parallel", 2, 5))
sketch15.addConstraint(Sketcher.Constraint("Parallel", 5, 6))
sketch15.addConstraint(Sketcher.Constraint("Parallel", 4, 8))
sketch15.addConstraint(Sketcher.Constraint("Parallel", 8, 11))
sketch15.addConstraint(Sketcher.Constraint("Parallel", 9, 12))
sketch15.addConstraint(Sketcher.Constraint("Parallel", 11, 14))
sketch15.addConstraint(Sketcher.Constraint("Parallel", 12, 15))
sketch15.addConstraint(Sketcher.Constraint("Parallel", 14, 17))
sketch15.addConstraint(Sketcher.Constraint("Parallel", 17, 18))
sketch15.addConstraint(Sketcher.Constraint("Parallel", 18, 21))
sketch15.addConstraint(Sketcher.Constraint("Horizontal", 1, 2, 4, 2))
sketch15.addConstraint(Sketcher.Constraint("Horizontal", 14, 2, 17, 2))
sketch15.addConstraint(Sketcher.Constraint("Vertical", 0, 2, 2, 2))
sketch15.addConstraint(Sketcher.Constraint("Vertical", 10, 2, 12, 2))
sketch15.addConstraint(Sketcher.Constraint("Vertical", 9, 2, 13, 2))
sketch15.addConstraint(Sketcher.Constraint("Vertical", 8, 2, 14, 2))
sketch15.addConstraint(Sketcher.Constraint("Vertical", 13, 2, 15, 2))
sketch15.addConstraint(Sketcher.Constraint("DistanceX", 0, 1, 0, 2, 2.0))
sketch15.addConstraint(Sketcher.Constraint("Angle", 1, Q("60 deg")))
sketch15.addConstraint(Sketcher.Constraint("Distance", 1, 2.0))
sketch15.addConstraint(Sketcher.Constraint("DistanceY", 14, 2, -1, 1, 25.0))
sketch15.addConstraint(Sketcher.Constraint("DistanceX", 1, 2, 6, 2, 78.7))
sketch15.addConstraint(Sketcher.Constraint("DistanceY", -1, 1, 1, 2, 31.85))
pocket7 = doc.addObject("PartDesign::Pocket", "Pocket006")
body.addObject(pocket7)
pocket7.Profile = sketch15
pocket7.Length = 4

doc.recompute()
